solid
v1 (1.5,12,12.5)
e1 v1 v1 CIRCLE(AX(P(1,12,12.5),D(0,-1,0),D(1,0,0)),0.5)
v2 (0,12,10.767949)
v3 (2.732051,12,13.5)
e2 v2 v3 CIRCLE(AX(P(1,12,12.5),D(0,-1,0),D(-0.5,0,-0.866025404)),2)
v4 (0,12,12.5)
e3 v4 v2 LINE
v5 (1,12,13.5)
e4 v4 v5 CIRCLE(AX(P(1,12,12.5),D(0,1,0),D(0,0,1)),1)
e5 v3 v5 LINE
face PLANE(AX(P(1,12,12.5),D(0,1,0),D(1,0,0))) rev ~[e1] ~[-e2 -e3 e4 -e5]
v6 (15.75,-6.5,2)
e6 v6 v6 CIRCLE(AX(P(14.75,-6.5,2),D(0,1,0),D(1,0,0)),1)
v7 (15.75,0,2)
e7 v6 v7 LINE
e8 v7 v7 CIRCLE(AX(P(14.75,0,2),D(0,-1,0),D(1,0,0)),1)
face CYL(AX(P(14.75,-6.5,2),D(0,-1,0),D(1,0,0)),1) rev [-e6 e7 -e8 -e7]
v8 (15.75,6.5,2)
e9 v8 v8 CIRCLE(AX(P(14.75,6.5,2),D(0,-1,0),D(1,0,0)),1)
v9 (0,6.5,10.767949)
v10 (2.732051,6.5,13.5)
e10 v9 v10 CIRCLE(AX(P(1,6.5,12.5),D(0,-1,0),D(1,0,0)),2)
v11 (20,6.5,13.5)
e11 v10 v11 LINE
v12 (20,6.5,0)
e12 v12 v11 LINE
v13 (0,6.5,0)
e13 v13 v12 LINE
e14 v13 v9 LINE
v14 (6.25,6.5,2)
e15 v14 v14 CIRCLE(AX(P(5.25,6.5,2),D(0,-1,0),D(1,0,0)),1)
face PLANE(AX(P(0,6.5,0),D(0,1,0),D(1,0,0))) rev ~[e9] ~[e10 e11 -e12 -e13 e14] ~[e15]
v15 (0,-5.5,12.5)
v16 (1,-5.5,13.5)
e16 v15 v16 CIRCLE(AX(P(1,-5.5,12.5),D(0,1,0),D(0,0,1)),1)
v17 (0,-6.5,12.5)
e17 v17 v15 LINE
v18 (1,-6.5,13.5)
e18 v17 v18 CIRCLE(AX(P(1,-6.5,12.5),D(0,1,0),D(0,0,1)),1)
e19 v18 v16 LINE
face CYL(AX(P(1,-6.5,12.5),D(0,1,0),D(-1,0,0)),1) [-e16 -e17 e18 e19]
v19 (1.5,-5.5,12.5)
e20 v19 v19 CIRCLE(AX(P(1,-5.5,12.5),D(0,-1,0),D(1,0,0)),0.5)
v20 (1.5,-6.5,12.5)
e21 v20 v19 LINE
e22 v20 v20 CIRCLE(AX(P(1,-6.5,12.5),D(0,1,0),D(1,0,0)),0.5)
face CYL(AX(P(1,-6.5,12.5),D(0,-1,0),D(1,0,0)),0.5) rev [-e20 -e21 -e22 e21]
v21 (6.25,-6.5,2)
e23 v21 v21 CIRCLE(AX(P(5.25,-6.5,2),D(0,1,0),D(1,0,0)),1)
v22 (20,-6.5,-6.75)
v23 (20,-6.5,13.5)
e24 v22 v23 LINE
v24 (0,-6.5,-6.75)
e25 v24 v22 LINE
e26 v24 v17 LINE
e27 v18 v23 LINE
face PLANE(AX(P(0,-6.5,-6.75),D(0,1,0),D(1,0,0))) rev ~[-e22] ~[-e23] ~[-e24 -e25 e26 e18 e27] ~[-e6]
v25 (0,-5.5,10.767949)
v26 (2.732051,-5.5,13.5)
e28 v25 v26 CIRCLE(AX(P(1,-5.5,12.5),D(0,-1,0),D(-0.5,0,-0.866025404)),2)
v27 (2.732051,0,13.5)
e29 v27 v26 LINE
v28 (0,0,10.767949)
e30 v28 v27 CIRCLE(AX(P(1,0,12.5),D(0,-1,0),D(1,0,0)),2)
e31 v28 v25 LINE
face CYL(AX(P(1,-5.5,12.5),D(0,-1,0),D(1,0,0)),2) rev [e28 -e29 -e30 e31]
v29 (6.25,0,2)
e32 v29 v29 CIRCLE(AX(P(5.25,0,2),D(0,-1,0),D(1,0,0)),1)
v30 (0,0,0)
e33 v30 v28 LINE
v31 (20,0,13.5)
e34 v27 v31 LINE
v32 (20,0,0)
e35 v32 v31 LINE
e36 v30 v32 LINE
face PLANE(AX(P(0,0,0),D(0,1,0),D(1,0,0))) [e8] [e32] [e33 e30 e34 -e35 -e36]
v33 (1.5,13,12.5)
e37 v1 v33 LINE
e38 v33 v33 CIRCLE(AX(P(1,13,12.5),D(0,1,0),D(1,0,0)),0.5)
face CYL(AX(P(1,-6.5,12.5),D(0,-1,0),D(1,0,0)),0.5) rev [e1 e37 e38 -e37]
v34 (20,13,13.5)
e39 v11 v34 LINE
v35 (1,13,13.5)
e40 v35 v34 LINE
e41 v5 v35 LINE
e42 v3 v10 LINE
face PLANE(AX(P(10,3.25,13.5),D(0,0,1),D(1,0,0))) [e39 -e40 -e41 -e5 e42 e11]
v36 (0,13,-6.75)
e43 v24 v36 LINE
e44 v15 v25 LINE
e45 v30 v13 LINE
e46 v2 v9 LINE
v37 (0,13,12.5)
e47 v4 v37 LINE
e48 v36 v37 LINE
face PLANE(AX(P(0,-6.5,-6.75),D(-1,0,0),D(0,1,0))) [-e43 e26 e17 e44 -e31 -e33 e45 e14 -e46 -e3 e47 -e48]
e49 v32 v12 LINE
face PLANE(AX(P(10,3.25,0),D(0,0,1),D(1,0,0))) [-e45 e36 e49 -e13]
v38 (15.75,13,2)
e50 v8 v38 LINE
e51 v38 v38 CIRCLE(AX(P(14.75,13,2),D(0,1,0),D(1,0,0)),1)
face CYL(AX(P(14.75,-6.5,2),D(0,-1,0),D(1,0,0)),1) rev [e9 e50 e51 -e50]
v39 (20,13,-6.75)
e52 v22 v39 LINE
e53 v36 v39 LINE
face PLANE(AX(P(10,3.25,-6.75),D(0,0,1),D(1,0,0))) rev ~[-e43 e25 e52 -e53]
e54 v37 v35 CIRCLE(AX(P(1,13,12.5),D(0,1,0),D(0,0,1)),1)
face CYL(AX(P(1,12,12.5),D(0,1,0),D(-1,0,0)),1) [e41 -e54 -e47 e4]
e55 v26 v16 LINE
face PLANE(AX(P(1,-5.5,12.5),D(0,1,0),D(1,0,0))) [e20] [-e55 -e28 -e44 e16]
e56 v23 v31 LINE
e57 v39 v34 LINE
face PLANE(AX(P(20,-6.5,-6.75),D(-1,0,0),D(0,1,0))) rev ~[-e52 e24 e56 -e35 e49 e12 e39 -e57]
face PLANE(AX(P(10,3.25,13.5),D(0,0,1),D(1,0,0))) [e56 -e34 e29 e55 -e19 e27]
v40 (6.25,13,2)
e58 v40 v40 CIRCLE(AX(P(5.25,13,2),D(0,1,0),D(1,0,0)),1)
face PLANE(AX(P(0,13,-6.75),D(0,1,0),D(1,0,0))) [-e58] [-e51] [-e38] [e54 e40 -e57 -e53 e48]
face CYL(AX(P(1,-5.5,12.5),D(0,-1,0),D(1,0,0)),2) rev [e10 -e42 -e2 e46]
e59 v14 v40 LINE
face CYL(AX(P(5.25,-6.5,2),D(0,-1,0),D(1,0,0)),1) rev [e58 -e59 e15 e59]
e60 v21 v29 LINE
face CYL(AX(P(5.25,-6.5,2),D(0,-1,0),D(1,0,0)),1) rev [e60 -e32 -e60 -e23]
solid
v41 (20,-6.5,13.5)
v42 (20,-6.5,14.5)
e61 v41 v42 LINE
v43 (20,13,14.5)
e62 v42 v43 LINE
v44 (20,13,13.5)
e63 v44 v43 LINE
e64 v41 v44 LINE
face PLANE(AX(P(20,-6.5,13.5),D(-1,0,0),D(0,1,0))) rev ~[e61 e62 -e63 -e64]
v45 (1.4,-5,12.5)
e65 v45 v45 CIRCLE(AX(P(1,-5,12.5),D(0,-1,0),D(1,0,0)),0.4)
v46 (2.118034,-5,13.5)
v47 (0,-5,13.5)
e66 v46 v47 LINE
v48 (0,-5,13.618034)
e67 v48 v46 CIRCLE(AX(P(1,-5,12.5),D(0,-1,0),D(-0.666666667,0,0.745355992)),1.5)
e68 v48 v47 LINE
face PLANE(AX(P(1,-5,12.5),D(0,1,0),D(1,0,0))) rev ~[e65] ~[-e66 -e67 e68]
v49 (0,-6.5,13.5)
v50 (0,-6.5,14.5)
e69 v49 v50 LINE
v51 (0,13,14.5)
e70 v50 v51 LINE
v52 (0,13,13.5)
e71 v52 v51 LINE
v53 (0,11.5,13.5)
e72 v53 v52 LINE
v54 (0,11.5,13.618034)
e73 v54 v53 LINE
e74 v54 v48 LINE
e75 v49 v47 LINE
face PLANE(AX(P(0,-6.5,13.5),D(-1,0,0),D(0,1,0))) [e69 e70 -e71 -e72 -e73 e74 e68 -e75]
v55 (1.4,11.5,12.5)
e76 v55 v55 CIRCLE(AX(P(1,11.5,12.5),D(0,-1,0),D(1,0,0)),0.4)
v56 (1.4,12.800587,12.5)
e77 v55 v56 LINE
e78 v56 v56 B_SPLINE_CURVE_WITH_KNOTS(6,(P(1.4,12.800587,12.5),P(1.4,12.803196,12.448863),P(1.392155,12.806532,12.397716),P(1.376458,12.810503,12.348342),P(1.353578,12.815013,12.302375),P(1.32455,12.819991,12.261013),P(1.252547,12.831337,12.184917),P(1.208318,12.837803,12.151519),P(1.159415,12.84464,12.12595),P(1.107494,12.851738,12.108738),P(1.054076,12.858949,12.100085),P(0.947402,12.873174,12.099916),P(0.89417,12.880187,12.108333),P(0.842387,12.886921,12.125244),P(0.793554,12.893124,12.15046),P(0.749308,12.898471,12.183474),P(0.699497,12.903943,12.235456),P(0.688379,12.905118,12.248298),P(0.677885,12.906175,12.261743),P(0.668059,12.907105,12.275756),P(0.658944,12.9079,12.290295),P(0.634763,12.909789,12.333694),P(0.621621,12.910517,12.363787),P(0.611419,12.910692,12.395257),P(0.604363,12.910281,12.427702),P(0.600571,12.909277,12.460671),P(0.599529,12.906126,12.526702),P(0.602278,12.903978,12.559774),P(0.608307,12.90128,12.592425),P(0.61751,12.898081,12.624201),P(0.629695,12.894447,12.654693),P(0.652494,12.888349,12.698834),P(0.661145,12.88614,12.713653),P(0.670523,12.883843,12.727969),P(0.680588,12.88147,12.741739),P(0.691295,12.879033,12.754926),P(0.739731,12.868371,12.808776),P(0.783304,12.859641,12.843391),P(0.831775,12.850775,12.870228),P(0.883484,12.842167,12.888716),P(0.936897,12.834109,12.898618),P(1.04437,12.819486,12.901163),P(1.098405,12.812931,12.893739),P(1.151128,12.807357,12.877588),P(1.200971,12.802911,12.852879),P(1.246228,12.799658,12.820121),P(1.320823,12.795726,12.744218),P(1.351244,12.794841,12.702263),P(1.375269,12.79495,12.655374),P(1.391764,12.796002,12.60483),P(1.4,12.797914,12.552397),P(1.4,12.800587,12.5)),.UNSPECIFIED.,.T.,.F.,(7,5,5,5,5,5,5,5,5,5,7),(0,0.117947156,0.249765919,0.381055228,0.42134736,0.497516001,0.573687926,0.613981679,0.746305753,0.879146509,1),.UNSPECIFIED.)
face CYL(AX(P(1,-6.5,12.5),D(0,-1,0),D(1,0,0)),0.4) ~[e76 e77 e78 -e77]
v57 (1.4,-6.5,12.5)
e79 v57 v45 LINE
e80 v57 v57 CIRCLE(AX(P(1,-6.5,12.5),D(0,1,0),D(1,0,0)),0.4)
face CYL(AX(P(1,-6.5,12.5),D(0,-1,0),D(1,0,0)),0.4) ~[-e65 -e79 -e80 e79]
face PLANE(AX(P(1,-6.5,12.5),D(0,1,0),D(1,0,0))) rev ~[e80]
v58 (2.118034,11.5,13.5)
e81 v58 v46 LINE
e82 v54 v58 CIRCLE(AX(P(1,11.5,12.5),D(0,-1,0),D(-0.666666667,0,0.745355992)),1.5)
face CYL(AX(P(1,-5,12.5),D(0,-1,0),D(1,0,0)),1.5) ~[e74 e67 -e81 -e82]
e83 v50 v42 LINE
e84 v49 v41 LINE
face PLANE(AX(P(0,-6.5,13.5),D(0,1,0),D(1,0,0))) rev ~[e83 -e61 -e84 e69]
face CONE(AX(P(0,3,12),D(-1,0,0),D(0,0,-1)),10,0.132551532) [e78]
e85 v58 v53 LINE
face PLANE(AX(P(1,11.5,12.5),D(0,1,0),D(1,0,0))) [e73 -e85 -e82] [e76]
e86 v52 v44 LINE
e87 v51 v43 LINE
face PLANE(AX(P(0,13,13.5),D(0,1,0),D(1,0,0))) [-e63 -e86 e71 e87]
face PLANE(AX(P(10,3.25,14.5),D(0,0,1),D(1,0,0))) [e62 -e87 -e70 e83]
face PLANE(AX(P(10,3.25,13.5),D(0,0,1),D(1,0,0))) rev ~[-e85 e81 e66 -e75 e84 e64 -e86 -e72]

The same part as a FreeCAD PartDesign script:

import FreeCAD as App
import Part
import Sketcher
from FreeCAD import Vector
Q = App.Units.Quantity


def edges_at(feature, points):
    """Names of the edges that pass closest to the given points."""
    edges = feature.Shape.Edges
    near = lambda p: min(range(len(edges)), key=lambda i: edges[i].distToShape(Part.Vertex(*p))[0])
    return sorted({f"Edge{near(p) + 1}" for p in points})

doc = App.newDocument("Part")
body = doc.addObject("PartDesign::Body", "Body")

sketch1 = body.newObject("Sketcher::SketchObject", "Sketch")
sketch1.AttachmentSupport = (doc.getObject("XZ_Plane"), [""])
sketch1.MapMode = "FlatFace"
sketch1.addGeometry([
    Part.LineSegment(Vector(0, 0, 0), Vector(10, 0, 0)),
    Part.LineSegment(Vector(10, 0, 0), Vector(6, 30, 0)),
    Part.LineSegment(Vector(6, 30, 0), Vector(0, 30, 0)),
    Part.LineSegment(Vector(0, 30, 0), Vector(0, 0, 0)),
], False)
sketch1.addConstraint([
    Sketcher.Constraint("Coincident", 0, 2, 1, 1),
    Sketcher.Constraint("Coincident", 1, 2, 2, 1),
    Sketcher.Constraint("Coincident", 2, 2, 3, 1),
    Sketcher.Constraint("Coincident", 3, 2, 0, 1),
    Sketcher.Constraint("Horizontal", 0),
    Sketcher.Constraint("Horizontal", 2),
    Sketcher.Constraint("Vertical", 3),
    Sketcher.Constraint("Coincident", 3, 2, -1, 1),
    Sketcher.Constraint("DistanceX", 0, 1, 0, 2, Q("10 mm")),
    Sketcher.Constraint("DistanceX", 2, 2, 2, 1, Q("6 mm")),
    Sketcher.Constraint("DistanceY", 3, 2, 3, 1, Q("30 mm")),
])
revolution = body.newObject("PartDesign::Revolution", "Revolution")
revolution.Profile = sketch1
revolution.ReferenceAxis = (sketch1, ["V_Axis"])
revolution.Angle = 360
body2 = doc.addObject("PartDesign::Body", "Body001")
doc.recompute()

body.Placement = App.Placement(Vector(0, 0, 0), App.Rotation(Vector(0, 1, 0), 90))
boolean = body2.newObject("PartDesign::Boolean", "Boolean")
boolean.Type = "Fuse"
boolean.addObjects([body])
body3 = doc.addObject("PartDesign::Body", "Body002")
doc.recompute()

body2.Placement = App.Placement(Vector(0, 3, 12), App.Rotation(Vector(0, 0, 1), 0))
boolean2 = body3.newObject("PartDesign::Boolean", "Boolean001")
boolean2.Type = "Fuse"
boolean2.addObjects([body2])
body4 = doc.addObject("PartDesign::Body", "Body003")

sketch2 = body4.newObject("Sketcher::SketchObject", "Sketch001")
sketch2.AttachmentSupport = (doc.getObject("XY_Plane003"), [""])
sketch2.MapMode = "FlatFace"
sketch2.addGeometry(Part.Circle(Vector(0, 0, 0), Vector(0, 0, 1), 0.4), False)
sketch2.addConstraint([
    Sketcher.Constraint("Coincident", 0, 3, -1, 1),
    Sketcher.Constraint("Diameter", 0, Q("0.8 mm")),
])
pad1 = body4.newObject("PartDesign::Pad", "Pad")
pad1.Profile = sketch2
pad1.Length = 19.5
body5 = doc.addObject("PartDesign::Body", "Body004")
doc.recompute()

body4.Placement = App.Placement(Vector(0, 0, 0), App.Rotation(Vector(1, 0, 0), 270))
boolean3 = body5.newObject("PartDesign::Boolean", "Boolean002")
boolean3.Type = "Fuse"
boolean3.addObjects([body4])
body6 = doc.addObject("PartDesign::Body", "Body005")
doc.recompute()

body5.Placement = App.Placement(Vector(1, -6.5, 12.5), App.Rotation(Vector(0, 0, 1), 0))
boolean4 = body6.newObject("PartDesign::Boolean", "Boolean003")
boolean4.Type = "Fuse"
boolean4.addObjects([body5])
doc.recompute()

boolean5 = body6.newObject("PartDesign::Boolean", "Boolean004")
boolean5.Type = "Common"
boolean5.addObjects([body3])
body7 = doc.addObject("PartDesign::Body", "Body006")

sketch3 = body7.newObject("Sketcher::SketchObject", "Sketch002")
sketch3.AttachmentSupport = (doc.getObject("XY_Plane006"), [""])
sketch3.MapMode = "FlatFace"
sketch3.addGeometry(Part.Circle(Vector(0, 0, 0), Vector(0, 0, 1), 1.5), False)
sketch3.addConstraint([
    Sketcher.Constraint("Coincident", 0, 3, -1, 1),
    Sketcher.Constraint("Diameter", 0, Q("3 mm")),
])
pad2 = body7.newObject("PartDesign::Pad", "Pad001")
pad2.Profile = sketch3
pad2.Length = 16.5
body8 = doc.addObject("PartDesign::Body", "Body007")
doc.recompute()

body7.Placement = App.Placement(Vector(0, 0, 0), App.Rotation(Vector(1, 0, 0), 270))
boolean6 = body8.newObject("PartDesign::Boolean", "Boolean005")
boolean6.Type = "Fuse"
boolean6.addObjects([body7])
body9 = doc.addObject("PartDesign::Body", "Body008")
doc.recompute()

body8.Placement = App.Placement(Vector(1, -5, 12.5), App.Rotation(Vector(0, 0, 1), 0))
boolean7 = body9.newObject("PartDesign::Boolean", "Boolean006")
boolean7.Type = "Fuse"
boolean7.addObjects([body8])
doc.recompute()

boolean8 = body9.newObject("PartDesign::Boolean", "Boolean007")
boolean8.Type = "Fuse"
boolean8.addObjects([body6])
body10 = doc.addObject("PartDesign::Body", "Body009")

sketch4 = body10.newObject("Sketcher::SketchObject", "Sketch003")
sketch4.AttachmentSupport = (doc.getObject("XY_Plane009"), [""])
sketch4.MapMode = "FlatFace"
sketch4.AttachmentOffset = App.Placement(Vector(0, 0, 13.5), App.Rotation())
sketch4.addGeometry([
    Part.LineSegment(Vector(0, 13, 0), Vector(0, -6.5, 0)),
    Part.LineSegment(Vector(0, -6.5, 0), Vector(20, -6.5, 0)),
    Part.LineSegment(Vector(20, -6.5, 0), Vector(20, 13, 0)),
    Part.LineSegment(Vector(20, 13, 0), Vector(0, 13, 0)),
], False)
sketch4.addConstraint([
    Sketcher.Constraint("Coincident", 0, 2, 1, 1),
    Sketcher.Constraint("Coincident", 1, 2, 2, 1),
    Sketcher.Constraint("Coincident", 2, 2, 3, 1),
    Sketcher.Constraint("Coincident", 3, 2, 0, 1),
    Sketcher.Constraint("Vertical", 0),
    Sketcher.Constraint("Horizontal", 1),
    Sketcher.Constraint("Vertical", 2),
    Sketcher.Constraint("Horizontal", 3),
    Sketcher.Constraint("PointOnObject", 0, 2, -2),
    Sketcher.Constraint("DistanceX", 1, 1, 1, 2, Q("20 mm")),
    Sketcher.Constraint("DistanceY", 0, 2, 0, 1, Q("19.5 mm")),
    Sketcher.Constraint("DistanceY", -1, 1, 2, 2, Q("13 mm")),
])
pad3 = body10.newObject("PartDesign::Pad", "Pad002")
pad3.Profile = sketch4
pad3.Length = 1
doc.recompute()

boolean9 = body10.newObject("PartDesign::Boolean", "Boolean008")
boolean9.Type = "Fuse"
boolean9.addObjects([body9])
body11 = doc.addObject("PartDesign::Body", "Body010")

sketch5 = body11.newObject("Sketcher::SketchObject", "Sketch004")
sketch5.AttachmentSupport = (doc.getObject("XY_Plane010"), [""])
sketch5.MapMode = "FlatFace"
sketch5.addGeometry(Part.Circle(Vector(0, 0, 0), Vector(0, 0, 1), 0.5), False)
sketch5.addConstraint([
    Sketcher.Constraint("Coincident", 0, 3, -1, 1),
    Sketcher.Constraint("Diameter", 0, Q("1 mm")),
])
pad4 = body11.newObject("PartDesign::Pad", "Pad003")
pad4.Profile = sketch5
pad4.Length = 19.5
body12 = doc.addObject("PartDesign::Body", "Body011")
doc.recompute()

body11.Placement = App.Placement(Vector(0, 0, 0), App.Rotation(Vector(1, 0, 0), 270))
boolean10 = body12.newObject("PartDesign::Boolean", "Boolean009")
boolean10.Type = "Fuse"
boolean10.addObjects([body11])
body13 = doc.addObject("PartDesign::Body", "Body012")
doc.recompute()

body12.Placement = App.Placement(Vector(1, -6.5, 12.5), App.Rotation(Vector(0, 0, 1), 0))
boolean11 = body13.newObject("PartDesign::Boolean", "Boolean010")
boolean11.Type = "Fuse"
boolean11.addObjects([body12])
body14 = doc.addObject("PartDesign::Body", "Body013")

sketch6 = body14.newObject("Sketcher::SketchObject", "Sketch005")
sketch6.AttachmentSupport = (doc.getObject("XY_Plane013"), [""])
sketch6.MapMode = "FlatFace"
sketch6.addGeometry(Part.Circle(Vector(0, 0, 0), Vector(0, 0, 1), 1), False)
sketch6.addConstraint([
    Sketcher.Constraint("Coincident", 0, 3, -1, 1),
    Sketcher.Constraint("Diameter", 0, Q("2 mm")),
])
pad5 = body14.newObject("PartDesign::Pad", "Pad004")
pad5.Profile = sketch6
pad5.Length = 19.5
body15 = doc.addObject("PartDesign::Body", "Body014")
doc.recompute()

body14.Placement = App.Placement(Vector(0, 0, 0), App.Rotation(Vector(1, 0, 0), 270))
boolean12 = body15.newObject("PartDesign::Boolean", "Boolean011")
boolean12.Type = "Fuse"
boolean12.addObjects([body14])
body16 = doc.addObject("PartDesign::Body", "Body015")
doc.recompute()

body15.Placement = App.Placement(Vector(14.75, -6.5, 2), App.Rotation(Vector(0, 0, 1), 0))
boolean13 = body16.newObject("PartDesign::Boolean", "Boolean012")
boolean13.Type = "Fuse"
boolean13.addObjects([body15])
body17 = doc.addObject("PartDesign::Body", "Body016")

sketch7 = body17.newObject("Sketcher::SketchObject", "Sketch006")
sketch7.AttachmentSupport = (doc.getObject("XY_Plane016"), [""])
sketch7.MapMode = "FlatFace"
sketch7.addGeometry(Part.Circle(Vector(0, 0, 0), Vector(0, 0, 1), 1), False)
sketch7.addConstraint([
    Sketcher.Constraint("Coincident", 0, 3, -1, 1),
    Sketcher.Constraint("Diameter", 0, Q("2 mm")),
])
pad6 = body17.newObject("PartDesign::Pad", "Pad005")
pad6.Profile = sketch7
pad6.Length = 19.5
body18 = doc.addObject("PartDesign::Body", "Body017")
doc.recompute()

body17.Placement = App.Placement(Vector(0, 0, 0), App.Rotation(Vector(1, 0, 0), 270))
boolean14 = body18.newObject("PartDesign::Boolean", "Boolean013")
boolean14.Type = "Fuse"
boolean14.addObjects([body17])
body19 = doc.addObject("PartDesign::Body", "Body018")
doc.recompute()

body18.Placement = App.Placement(Vector(5.25, -6.5, 2), App.Rotation(Vector(0, 0, 1), 0))
boolean15 = body19.newObject("PartDesign::Boolean", "Boolean014")
boolean15.Type = "Fuse"
boolean15.addObjects([body18])
body20 = doc.addObject("PartDesign::Body", "Body019")

sketch8 = body20.newObject("Sketcher::SketchObject", "Sketch007")
sketch8.AttachmentSupport = (doc.getObject("XY_Plane019"), [""])
sketch8.MapMode = "FlatFace"
sketch8.addGeometry([
    Part.LineSegment(Vector(0, 6.5, 0), Vector(0, 0, 0)),
    Part.LineSegment(Vector(0, 0, 0), Vector(20, 0, 0)),
    Part.LineSegment(Vector(20, 0, 0), Vector(20, 6.5, 0)),
    Part.LineSegment(Vector(20, 6.5, 0), Vector(0, 6.5, 0)),
], False)
sketch8.addConstraint([
    Sketcher.Constraint("Coincident", 0, 2, 1, 1),
    Sketcher.Constraint("Coincident", 1, 2, 2, 1),
    Sketcher.Constraint("Coincident", 2, 2, 3, 1),
    Sketcher.Constraint("Coincident", 3, 2, 0, 1),
    Sketcher.Constraint("Vertical", 0),
    Sketcher.Constraint("Horizontal", 1),
    Sketcher.Constraint("Vertical", 2),
    Sketcher.Constraint("Horizontal", 3),
    Sketcher.Constraint("Coincident", 0, 2, -1, 1),
    Sketcher.Constraint("DistanceX", 1, 1, 1, 2, Q("20 mm")),
    Sketcher.Constraint("DistanceY", 0, 2, 0, 1, Q("6.5 mm")),
])
pad7 = body20.newObject("PartDesign::Pad", "Pad006")
pad7.Profile = sketch8
pad7.Length = 13.5
doc.recompute()

boolean16 = body20.newObject("PartDesign::Boolean", "Boolean015")
boolean16.Type = "Fuse"
boolean16.addObjects([body19])
doc.recompute()

boolean17 = body20.newObject("PartDesign::Boolean", "Boolean016")
boolean17.Type = "Fuse"
boolean17.addObjects([body16])
body21 = doc.addObject("PartDesign::Body", "Body020")

sketch9 = body21.newObject("Sketcher::SketchObject", "Sketch008")
sketch9.AttachmentSupport = (doc.getObject("XY_Plane020"), [""])
sketch9.MapMode = "FlatFace"
sketch9.addGeometry(Part.Circle(Vector(0, 0, 0), Vector(0, 0, 1), 2), False)
sketch9.addConstraint([
    Sketcher.Constraint("Coincident", 0, 3, -1, 1),
    Sketcher.Constraint("Diameter", 0, Q("4 mm")),
])
pad8 = body21.newObject("PartDesign::Pad", "Pad007")
pad8.Profile = sketch9
pad8.Length = 17.5
body22 = doc.addObject("PartDesign::Body", "Body021")
doc.recompute()

body21.Placement = App.Placement(Vector(0, 0, 0), App.Rotation(Vector(1, 0, 0), 270))
boolean18 = body22.newObject("PartDesign::Boolean", "Boolean017")
boolean18.Type = "Fuse"
boolean18.addObjects([body21])
body23 = doc.addObject("PartDesign::Body", "Body022")
doc.recompute()

body22.Placement = App.Placement(Vector(1, -5.5, 12.5), App.Rotation(Vector(0, 0, 1), 0))
boolean19 = body23.newObject("PartDesign::Boolean", "Boolean018")
boolean19.Type = "Fuse"
boolean19.addObjects([body22])
body24 = doc.addObject("PartDesign::Body", "Body023")

sketch10 = body24.newObject("Sketcher::SketchObject", "Sketch009")
sketch10.AttachmentSupport = (doc.getObject("XY_Plane023"), [""])
sketch10.MapMode = "FlatFace"
sketch10.AttachmentOffset = App.Placement(Vector(0, 0, -6.75), App.Rotation())
sketch10.addGeometry([
    Part.LineSegment(Vector(0, 13, 0), Vector(0, -6.5, 0)),
    Part.LineSegment(Vector(0, -6.5, 0), Vector(20, -6.5, 0)),
    Part.LineSegment(Vector(20, -6.5, 0), Vector(20, 13, 0)),
    Part.LineSegment(Vector(20, 13, 0), Vector(0, 13, 0)),
], False)
sketch10.addConstraint([
    Sketcher.Constraint("Coincident", 0, 2, 1, 1),
    Sketcher.Constraint("Coincident", 1, 2, 2, 1),
    Sketcher.Constraint("Coincident", 2, 2, 3, 1),
    Sketcher.Constraint("Coincident", 3, 2, 0, 1),
    Sketcher.Constraint("Vertical", 0),
    Sketcher.Constraint("Horizontal", 1),
    Sketcher.Constraint("Vertical", 2),
    Sketcher.Constraint("Horizontal", 3),
    Sketcher.Constraint("PointOnObject", 0, 2, -2),
    Sketcher.Constraint("DistanceX", 1, 1, 1, 2, Q("20 mm")),
    Sketcher.Constraint("DistanceY", 0, 2, 0, 1, Q("19.5 mm")),
    Sketcher.Constraint("DistanceY", -1, 1, 2, 2, Q("13 mm")),
])
pad9 = body24.newObject("PartDesign::Pad", "Pad008")
pad9.Profile = sketch10
pad9.Length = 20.25
doc.recompute()

boolean20 = body24.newObject("PartDesign::Boolean", "Boolean019")
boolean20.Type = "Cut"
boolean20.addObjects([body23])
doc.recompute()

boolean21 = body24.newObject("PartDesign::Boolean", "Boolean020")
boolean21.Type = "Cut"
boolean21.addObjects([body20])
doc.recompute()

boolean22 = body24.newObject("PartDesign::Boolean", "Boolean021")
boolean22.Type = "Cut"
boolean22.addObjects([body13])
doc.recompute()

fillet = body24.newObject("PartDesign::Fillet", "Fillet")
fillet.Base = (boolean22, edges_at(boolean22, [(0, -6, 13.5), (0, 12.5, 13.5)]))
fillet.Radius = 1

doc.recompute()
